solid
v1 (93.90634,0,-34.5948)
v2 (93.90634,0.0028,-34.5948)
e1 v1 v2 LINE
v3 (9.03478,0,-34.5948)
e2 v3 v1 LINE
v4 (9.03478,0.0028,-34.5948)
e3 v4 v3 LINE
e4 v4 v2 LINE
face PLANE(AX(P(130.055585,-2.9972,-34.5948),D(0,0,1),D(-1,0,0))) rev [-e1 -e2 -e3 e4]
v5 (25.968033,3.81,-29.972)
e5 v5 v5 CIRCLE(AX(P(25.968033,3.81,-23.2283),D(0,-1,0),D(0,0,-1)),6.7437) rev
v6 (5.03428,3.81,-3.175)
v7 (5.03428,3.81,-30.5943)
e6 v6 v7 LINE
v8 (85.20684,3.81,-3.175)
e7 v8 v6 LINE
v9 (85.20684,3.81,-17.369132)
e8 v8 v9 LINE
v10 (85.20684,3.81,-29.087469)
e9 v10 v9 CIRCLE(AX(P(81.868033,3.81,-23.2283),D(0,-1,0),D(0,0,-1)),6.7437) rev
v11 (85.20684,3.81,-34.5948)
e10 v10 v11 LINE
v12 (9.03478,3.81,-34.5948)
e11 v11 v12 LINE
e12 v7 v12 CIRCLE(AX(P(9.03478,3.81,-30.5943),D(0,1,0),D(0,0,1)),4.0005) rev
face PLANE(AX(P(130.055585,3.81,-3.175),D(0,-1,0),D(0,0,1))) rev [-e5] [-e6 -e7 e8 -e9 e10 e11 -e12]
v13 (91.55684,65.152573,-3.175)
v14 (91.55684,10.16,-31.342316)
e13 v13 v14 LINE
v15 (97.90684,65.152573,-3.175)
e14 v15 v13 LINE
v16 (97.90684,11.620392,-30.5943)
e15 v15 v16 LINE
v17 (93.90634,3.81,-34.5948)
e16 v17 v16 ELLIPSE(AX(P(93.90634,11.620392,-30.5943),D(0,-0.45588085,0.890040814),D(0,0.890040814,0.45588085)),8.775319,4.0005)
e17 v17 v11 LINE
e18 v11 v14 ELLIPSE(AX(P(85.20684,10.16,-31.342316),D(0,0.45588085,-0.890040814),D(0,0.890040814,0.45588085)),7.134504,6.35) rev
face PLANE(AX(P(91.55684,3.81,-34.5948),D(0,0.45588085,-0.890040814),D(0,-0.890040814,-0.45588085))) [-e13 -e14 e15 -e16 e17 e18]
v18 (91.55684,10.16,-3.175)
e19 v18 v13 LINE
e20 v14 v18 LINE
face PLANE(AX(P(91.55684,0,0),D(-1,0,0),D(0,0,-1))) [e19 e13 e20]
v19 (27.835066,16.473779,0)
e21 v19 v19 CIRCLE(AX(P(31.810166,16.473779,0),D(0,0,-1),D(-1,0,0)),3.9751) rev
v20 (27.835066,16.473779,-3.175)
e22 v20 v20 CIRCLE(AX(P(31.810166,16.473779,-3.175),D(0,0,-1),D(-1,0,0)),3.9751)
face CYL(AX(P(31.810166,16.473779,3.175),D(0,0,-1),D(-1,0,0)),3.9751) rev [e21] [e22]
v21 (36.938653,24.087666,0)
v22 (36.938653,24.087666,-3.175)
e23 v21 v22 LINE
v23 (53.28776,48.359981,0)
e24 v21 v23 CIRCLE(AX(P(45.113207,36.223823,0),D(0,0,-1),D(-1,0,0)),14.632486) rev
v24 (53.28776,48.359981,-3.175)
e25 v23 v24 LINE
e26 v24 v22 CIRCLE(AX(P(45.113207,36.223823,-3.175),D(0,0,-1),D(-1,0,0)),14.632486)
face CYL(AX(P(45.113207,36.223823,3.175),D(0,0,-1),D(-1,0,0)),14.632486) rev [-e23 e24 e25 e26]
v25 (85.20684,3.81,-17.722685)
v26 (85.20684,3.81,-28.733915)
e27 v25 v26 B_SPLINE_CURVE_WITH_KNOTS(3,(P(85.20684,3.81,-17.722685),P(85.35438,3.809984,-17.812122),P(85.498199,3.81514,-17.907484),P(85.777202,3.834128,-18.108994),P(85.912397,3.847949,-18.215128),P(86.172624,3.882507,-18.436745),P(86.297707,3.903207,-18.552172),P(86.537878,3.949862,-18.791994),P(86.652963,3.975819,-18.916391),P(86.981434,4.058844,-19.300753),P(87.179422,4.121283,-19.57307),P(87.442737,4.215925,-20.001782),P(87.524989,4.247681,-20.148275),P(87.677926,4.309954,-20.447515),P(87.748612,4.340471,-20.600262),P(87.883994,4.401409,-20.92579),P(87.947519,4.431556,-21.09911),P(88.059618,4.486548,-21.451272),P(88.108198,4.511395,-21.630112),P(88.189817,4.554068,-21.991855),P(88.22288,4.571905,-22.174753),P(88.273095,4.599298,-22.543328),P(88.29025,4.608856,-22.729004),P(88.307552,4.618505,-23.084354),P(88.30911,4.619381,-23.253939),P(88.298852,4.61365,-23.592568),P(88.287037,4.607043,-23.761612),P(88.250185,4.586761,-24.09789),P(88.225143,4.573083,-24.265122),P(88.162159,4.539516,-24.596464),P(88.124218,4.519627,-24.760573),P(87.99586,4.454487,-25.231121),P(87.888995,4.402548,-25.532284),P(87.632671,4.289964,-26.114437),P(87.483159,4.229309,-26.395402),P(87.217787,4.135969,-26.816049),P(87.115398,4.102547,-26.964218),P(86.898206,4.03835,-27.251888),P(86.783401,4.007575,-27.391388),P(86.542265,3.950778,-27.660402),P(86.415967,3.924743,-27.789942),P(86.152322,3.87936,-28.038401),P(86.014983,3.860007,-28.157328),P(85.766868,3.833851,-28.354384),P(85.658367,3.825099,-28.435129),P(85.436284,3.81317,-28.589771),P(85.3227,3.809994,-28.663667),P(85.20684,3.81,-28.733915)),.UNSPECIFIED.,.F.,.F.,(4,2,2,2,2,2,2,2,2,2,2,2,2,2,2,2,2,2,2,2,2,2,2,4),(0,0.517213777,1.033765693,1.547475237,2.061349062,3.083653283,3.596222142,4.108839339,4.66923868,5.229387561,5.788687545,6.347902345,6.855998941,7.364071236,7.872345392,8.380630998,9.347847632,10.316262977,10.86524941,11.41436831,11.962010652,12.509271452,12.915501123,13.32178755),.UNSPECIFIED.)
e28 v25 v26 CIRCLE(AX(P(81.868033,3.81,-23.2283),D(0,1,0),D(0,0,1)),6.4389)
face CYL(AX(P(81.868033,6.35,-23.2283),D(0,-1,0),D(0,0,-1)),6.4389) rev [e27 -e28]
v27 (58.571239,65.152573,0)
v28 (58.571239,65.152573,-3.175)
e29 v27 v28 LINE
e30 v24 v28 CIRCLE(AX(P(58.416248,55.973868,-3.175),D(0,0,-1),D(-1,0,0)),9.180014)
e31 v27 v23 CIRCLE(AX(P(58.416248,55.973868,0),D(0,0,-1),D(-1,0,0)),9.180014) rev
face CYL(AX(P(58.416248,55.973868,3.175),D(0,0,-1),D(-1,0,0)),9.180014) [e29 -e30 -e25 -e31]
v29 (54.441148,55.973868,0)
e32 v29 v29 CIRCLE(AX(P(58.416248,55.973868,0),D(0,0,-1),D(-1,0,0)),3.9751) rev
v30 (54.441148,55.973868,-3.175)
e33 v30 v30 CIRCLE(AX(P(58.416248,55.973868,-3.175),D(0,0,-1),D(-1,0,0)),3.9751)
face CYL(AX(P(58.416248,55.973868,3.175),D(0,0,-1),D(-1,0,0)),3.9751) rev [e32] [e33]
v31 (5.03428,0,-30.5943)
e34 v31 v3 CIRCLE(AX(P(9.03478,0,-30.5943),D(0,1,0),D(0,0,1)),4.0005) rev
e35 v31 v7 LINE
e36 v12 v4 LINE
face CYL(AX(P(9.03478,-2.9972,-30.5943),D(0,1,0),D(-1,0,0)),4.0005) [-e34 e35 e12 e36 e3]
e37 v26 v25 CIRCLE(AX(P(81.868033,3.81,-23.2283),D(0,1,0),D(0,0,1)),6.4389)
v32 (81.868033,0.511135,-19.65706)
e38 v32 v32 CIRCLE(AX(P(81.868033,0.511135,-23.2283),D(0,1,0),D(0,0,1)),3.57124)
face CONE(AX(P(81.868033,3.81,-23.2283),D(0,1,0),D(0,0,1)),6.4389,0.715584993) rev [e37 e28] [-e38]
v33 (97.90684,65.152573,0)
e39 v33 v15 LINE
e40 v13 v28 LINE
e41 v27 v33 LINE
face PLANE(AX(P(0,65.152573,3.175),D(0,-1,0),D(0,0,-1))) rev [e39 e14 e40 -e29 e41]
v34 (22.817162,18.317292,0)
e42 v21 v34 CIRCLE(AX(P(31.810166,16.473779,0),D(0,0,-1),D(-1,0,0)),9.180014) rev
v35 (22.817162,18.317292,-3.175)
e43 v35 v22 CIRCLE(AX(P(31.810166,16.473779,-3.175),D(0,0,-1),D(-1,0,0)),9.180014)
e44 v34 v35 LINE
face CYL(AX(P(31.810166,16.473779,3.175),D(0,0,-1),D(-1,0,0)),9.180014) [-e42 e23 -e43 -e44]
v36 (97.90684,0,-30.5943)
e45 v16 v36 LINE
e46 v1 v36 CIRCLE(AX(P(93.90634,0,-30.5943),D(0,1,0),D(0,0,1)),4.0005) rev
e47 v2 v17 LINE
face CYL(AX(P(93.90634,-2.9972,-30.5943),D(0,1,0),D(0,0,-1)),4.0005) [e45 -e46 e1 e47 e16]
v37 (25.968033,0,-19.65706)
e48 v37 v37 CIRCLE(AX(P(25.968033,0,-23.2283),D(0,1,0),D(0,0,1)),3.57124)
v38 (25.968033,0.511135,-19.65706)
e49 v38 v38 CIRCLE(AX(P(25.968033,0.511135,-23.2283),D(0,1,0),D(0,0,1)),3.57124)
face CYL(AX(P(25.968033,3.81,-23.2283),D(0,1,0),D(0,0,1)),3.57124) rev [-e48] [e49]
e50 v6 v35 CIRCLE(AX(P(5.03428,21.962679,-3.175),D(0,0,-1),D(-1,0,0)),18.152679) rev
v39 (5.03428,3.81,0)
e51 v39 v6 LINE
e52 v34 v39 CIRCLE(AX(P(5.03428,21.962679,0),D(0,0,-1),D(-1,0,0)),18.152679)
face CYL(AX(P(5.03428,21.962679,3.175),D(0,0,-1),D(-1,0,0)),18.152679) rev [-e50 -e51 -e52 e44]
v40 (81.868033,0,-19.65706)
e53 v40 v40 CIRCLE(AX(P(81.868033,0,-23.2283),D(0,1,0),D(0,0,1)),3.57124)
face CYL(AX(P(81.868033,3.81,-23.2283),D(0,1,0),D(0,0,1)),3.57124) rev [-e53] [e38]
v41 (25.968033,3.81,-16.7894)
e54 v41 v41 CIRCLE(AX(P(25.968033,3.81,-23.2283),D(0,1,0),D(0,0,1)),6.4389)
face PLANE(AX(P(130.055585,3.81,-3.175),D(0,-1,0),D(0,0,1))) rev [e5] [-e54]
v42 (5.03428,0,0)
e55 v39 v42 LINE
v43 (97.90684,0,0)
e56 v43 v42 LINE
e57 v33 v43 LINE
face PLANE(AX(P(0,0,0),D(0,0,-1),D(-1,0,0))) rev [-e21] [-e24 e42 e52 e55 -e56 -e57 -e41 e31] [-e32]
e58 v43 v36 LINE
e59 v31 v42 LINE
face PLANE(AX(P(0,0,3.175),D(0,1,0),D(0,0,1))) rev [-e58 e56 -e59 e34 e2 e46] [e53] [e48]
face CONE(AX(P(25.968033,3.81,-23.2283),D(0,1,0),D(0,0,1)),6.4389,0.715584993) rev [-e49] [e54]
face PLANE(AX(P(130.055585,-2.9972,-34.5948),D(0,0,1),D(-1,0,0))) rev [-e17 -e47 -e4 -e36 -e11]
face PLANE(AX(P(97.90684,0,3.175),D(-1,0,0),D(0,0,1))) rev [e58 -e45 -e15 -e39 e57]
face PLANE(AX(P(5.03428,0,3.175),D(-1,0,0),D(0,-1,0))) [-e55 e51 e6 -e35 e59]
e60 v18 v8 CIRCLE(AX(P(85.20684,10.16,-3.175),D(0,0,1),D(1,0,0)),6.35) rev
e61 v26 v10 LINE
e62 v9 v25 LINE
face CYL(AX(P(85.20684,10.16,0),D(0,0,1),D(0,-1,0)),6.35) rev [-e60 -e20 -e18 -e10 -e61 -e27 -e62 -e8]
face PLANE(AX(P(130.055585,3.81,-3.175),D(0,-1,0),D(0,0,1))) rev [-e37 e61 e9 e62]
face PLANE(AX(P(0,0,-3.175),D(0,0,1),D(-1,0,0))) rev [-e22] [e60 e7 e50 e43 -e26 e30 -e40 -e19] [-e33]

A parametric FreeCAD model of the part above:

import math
import FreeCAD as App
import Part
import Sketcher
Q = App.Units.Quantity


def edges_at(feature, points):
    """Names of the edges that pass closest to the given points."""
    edges = feature.Shape.Edges
    near = lambda p: min(range(len(edges)), key=lambda i: edges[i].distToShape(Part.Vertex(*p))[0])
    return sorted({f"Edge{near(p) + 1}" for p in points})


def add_polygon(sketch, points):
    """Adds a closed chain of lines whose ends are joined by coincident constraints."""
    first, n = sketch.GeometryCount, len(points)
    for a, b in zip(points, points[1:] + points[:1]):
        sketch.addGeometry(Part.LineSegment(App.Vector(*a, 0), App.Vector(*b, 0)), False)
    for i in range(n):
        sketch.addConstraint(Sketcher.Constraint("Coincident", first + i, 2, first + (i + 1) % n, 1))

doc = App.newDocument("Part")
body = doc.addObject("PartDesign::Body", "Body")

# Sketch on XY plane
sketch1 = body.newObject("Sketcher::SketchObject", "Sketch")
sketch1.AttachmentSupport = (doc.getObject("XY_Plane"), [""])
sketch1.MapMode = "FlatFace"
add_polygon(sketch1, [(0, 127), (0, 0), (102, 0), (102, 127)])  # lines 0-3
sketch1.addConstraint([
    Sketcher.Constraint("Vertical", 0),
    Sketcher.Constraint("Horizontal", 1),
    Sketcher.Constraint("Vertical", 2),
    Sketcher.Constraint("Horizontal", 3),
    Sketcher.Constraint("Coincident", 0, 2, -1, 1),
    Sketcher.Constraint("DistanceX", 1, 1, 1, 2, Q("4 in")),
    Sketcher.Constraint("DistanceY", 0, 2, 0, 1, Q("5 in")),
])
pad1 = body.newObject("PartDesign::Pad", "Pad")
pad1.Profile = sketch1
pad1.Length = Q("0.125 in")

# Sketch on XY plane
sketch2 = body.newObject("Sketcher::SketchObject", "Sketch001")
sketch2.AttachmentSupport = (doc.getObject("XY_Plane"), [""])
sketch2.MapMode = "FlatFace"
sketch2.addGeometry([
    Part.ArcOfCircle(Part.Circle(App.Vector(58.4, 56, 0), App.Vector(0, 0, 1), 9.2), math.radians(89), math.radians(236)),  # 0
    Part.ArcOfCircle(Part.Circle(App.Vector(45.1, 36.2, 0), App.Vector(0, 0, 1), 14.6), math.radians(-124), math.radians(56)),  # 1
    Part.ArcOfCircle(Part.Circle(App.Vector(31.8, 16.5, 0), App.Vector(0, 0, 1), 9.2), math.radians(56), math.radians(168)),  # 2
    Part.ArcOfCircle(Part.Circle(App.Vector(5, 22, 0), App.Vector(0, 0, 1), 18.2), math.radians(-90), math.radians(-12)),  # 3
    Part.LineSegment(App.Vector(5, 3.8, 0), App.Vector(5, 0, 0)),  # 4
    Part.LineSegment(App.Vector(5, 0, 0), App.Vector(0, 0, 0)),  # 5
    Part.LineSegment(App.Vector(0, 0, 0), App.Vector(0, 127, 0)),  # 6
    Part.LineSegment(App.Vector(0, 127, 0), App.Vector(101.6, 127, 0)),  # 7
    Part.LineSegment(App.Vector(101.6, 127, 0), App.Vector(101.6, 0, 0)),  # 8
    Part.LineSegment(App.Vector(101.6, 0, 0), App.Vector(97.9, 0, 0)),  # 9
    Part.LineSegment(App.Vector(97.9, 0, 0), App.Vector(97.9, 65.2, 0)),  # 10
    Part.LineSegment(App.Vector(97.9, 65.2, 0), App.Vector(58.6, 65.2, 0)),  # 11
    Part.Circle(App.Vector(58.4, 56, 0), App.Vector(0, 0, 1), 4),  # 12
    Part.Circle(App.Vector(31.8, 16.5, 0), App.Vector(0, 0, 1), 4),  # 13
], False)
sketch2.addConstraint([
    Sketcher.Constraint("Tangent", 0, 2, 1, 2),
    Sketcher.Constraint("Tangent", 1, 1, 2, 1),
    Sketcher.Constraint("Tangent", 2, 2, 3, 2),
    Sketcher.Constraint("Coincident", 3, 1, 4, 1),
    Sketcher.Constraint("Coincident", 4, 2, 5, 1),
    Sketcher.Constraint("Coincident", 5, 2, 6, 1),
    Sketcher.Constraint("Coincident", 6, 2, 7, 1),
    Sketcher.Constraint("Coincident", 7, 2, 8, 1),
    Sketcher.Constraint("Coincident", 8, 2, 9, 1),
    Sketcher.Constraint("Coincident", 9, 2, 10, 1),
    Sketcher.Constraint("Coincident", 10, 2, 11, 1),
    Sketcher.Constraint("Coincident", 11, 2, 0, 1),
    Sketcher.Constraint("Vertical", 4),
    Sketcher.Constraint("Horizontal", 5),
    Sketcher.Constraint("Vertical", 6),
    Sketcher.Constraint("Horizontal", 7),
    Sketcher.Constraint("Vertical", 8),
    Sketcher.Constraint("Horizontal", 9),
    Sketcher.Constraint("Vertical", 10),
    Sketcher.Constraint("Horizontal", 11),
    Sketcher.Constraint("Coincident", 5, 2, -1, 1),
    Sketcher.Constraint("Coincident", 12, 3, 0, 3),
    Sketcher.Constraint("Coincident", 13, 3, 2, 3),
    Sketcher.Constraint("Equal", 0, 2),
    Sketcher.Constraint("Equal", 12, 13),
    Sketcher.Constraint("PointOnObject", 8, 2, -1),
    Sketcher.Constraint("DistanceX", 7, 1, 7, 2, Q("4 in")),
    Sketcher.Constraint("DistanceY", 6, 1, 6, 2, Q("5 in")),
    Sketcher.Constraint("Diameter", 12, Q("0.313 in")),
    Sketcher.Constraint("DistanceY", 4, 2, 4, 1, Q("0.15 in")),
    Sketcher.Constraint("DistanceX", 5, 2, 5, 1, Q("0.1982 in")),
    Sketcher.Constraint("DistanceX", 9, 2, 9, 1, Q("0.1454 in")),
    Sketcher.Constraint("Radius", 3, 18.152679),
    Sketcher.Constraint("DistanceX", 11, 2, 11, 1, 39.335601),
    Sketcher.Constraint("DistanceX", -1, 1, 3, 3, Q("0.1982 in")),
    Sketcher.Constraint("Radius", 0, 9.180014),
    Sketcher.Constraint("Radius", 1, 14.632486),
    Sketcher.Constraint("DistanceY", 2, 3, 3, 3, 5.4889),
    Sketcher.Constraint("DistanceY", 10, 1, 10, 2, 65.152573),
    Sketcher.Constraint("DistanceX", -1, 1, 0, 2, 53.28776),
])
pocket1 = body.newObject("PartDesign::Pocket", "Pocket")
pocket1.Profile = sketch2
pocket1.Length = Q("0.125 in")
pocket1.Reversed = True

# Sketch on YZ plane
sketch3 = body.newObject("Sketcher::SketchObject", "Sketch002")
sketch3.AttachmentSupport = (doc.getObject("YZ_Plane"), [""])
sketch3.MapMode = "FlatFace"
sketch3.AttachmentOffset = App.Placement(App.Vector(0, 0, 0.1982 * 25.4), App.Rotation())
add_polygon(sketch3, [(0, 4.2), (0, 3.2), (3.8, 3.2), (3.8, 34.6), (-3, 34.6), (-3, 4.2)])  # lines 0-5
sketch3.addConstraint([
    Sketcher.Constraint("Vertical", 0),
    Sketcher.Constraint("Horizontal", 1),
    Sketcher.Constraint("Vertical", 2),
    Sketcher.Constraint("Horizontal", 3),
    Sketcher.Constraint("Vertical", 4),
    Sketcher.Constraint("Horizontal", 5),
    Sketcher.Constraint("PointOnObject", 0, 2, -2),
    Sketcher.Constraint("DistanceX", 1, 1, 1, 2, Q("0.15 in")),
    Sketcher.Constraint("DistanceX", 3, 2, 3, 1, Q("0.268 in")),
    Sketcher.Constraint("DistanceY", 0, 2, 0, 1, Q("0.042 in")),
    Sketcher.Constraint("DistanceY", 2, 1, 2, 2, Q("1.237 in")),
    Sketcher.Constraint("DistanceY", -1, 1, 0, 2, Q("0.125 in")),
])
pad2 = body.newObject("PartDesign::Pad", "Pad001")
pad2.Profile = sketch3
pad2.Length = Q("3.6564 in")

# Sketch on YZ plane
sketch4 = body.newObject("Sketcher::SketchObject", "Sketch003")
sketch4.AttachmentSupport = (doc.getObject("YZ_Plane"), [""])
sketch4.MapMode = "FlatFace"
sketch4.AttachmentOffset = App.Placement(App.Vector(0, 0, 3.8546 * 25.4), App.Rotation())
add_polygon(sketch4, [(4, 3), (65, 3), (4, 35)])  # lines 0-2
sketch4.addConstraint([
    Sketcher.Constraint("Horizontal", 0),
    Sketcher.Constraint("Vertical", 2),
    Sketcher.Constraint("DistanceY", 2, 2, 2, 1, Q("1.237 in")),
    Sketcher.Constraint("DistanceX", -1, 1, 1, 2, Q("0.15 in")),
    Sketcher.Constraint("DistanceY", -1, 1, 0, 2, Q("0.125 in")),
    Sketcher.Constraint("Distance", 1, 68.921079),
])
pad3 = body.newObject("PartDesign::Pad", "Pad002")
pad3.Profile = sketch4
pad3.Length = Q("0.25 in")
pad3.Reversed = True

# Sketch on XZ plane
sketch5 = body.newObject("Sketcher::SketchObject", "Sketch004")
sketch5.AttachmentSupport = (doc.getObject("XZ_Plane"), [""])
sketch5.MapMode = "FlatFace"
sketch5.AttachmentOffset = App.Placement(App.Vector(0, 0, 0.118 * 25.4), App.Rotation())
sketch5.addGeometry([
    Part.Circle(App.Vector(26, 23.2, 0), App.Vector(0, 0, 1), 3.2),
    Part.Circle(App.Vector(81.9, 23.2, 0), App.Vector(0, 0, 1), 3.2),
], False)
sketch5.addConstraint([
    Sketcher.Constraint("Equal", 0, 1),
    Sketcher.Constraint("Horizontal", 0, 3, 1, 3),
    Sketcher.Constraint("Diameter", 0, Q("0.25 in")),
    Sketcher.Constraint("DistanceY", -1, 1, 0, 3, Q("0.9145 in")),
    Sketcher.Constraint("DistanceX", 0, 3, 1, 3, 55.9),
    Sketcher.Constraint("DistanceX", -1, 1, 0, 3, 25.968033),
])
pocket2 = body.newObject("PartDesign::Pocket", "Pocket001")
pocket2.Profile = sketch5
pocket2.Length = Q("0.268 in")
doc.recompute()

fillet = body.newObject("PartDesign::Fillet", "Fillet")
fillet.Base = (pocket2, edges_at(pocket2, [
    (97.907, -1.499, 4.242),
    (5.034, -1.499, 4.242),
    (97.907, 0.406, 34.595),
    (5.034, 0.406, 34.595),
]))
fillet.Radius = Q("0.1575 in")
body2 = doc.addObject("PartDesign::Body", "Body001")
doc.recompute()

body2.BaseFeature = body
doc.recompute()

mirroring = doc.addObject("Part::Mirroring", "Mirroring")
mirroring.Source = body
mirroring.Base = App.Vector(0, 0, 0)
mirroring.Normal = App.Vector(0, 0, 1)
body3 = doc.addObject("PartDesign::Body", "Body002")
body3.BaseFeature = mirroring
boolean = body2.newObject("PartDesign::Boolean", "Boolean")
boolean.Type = "Fuse"
boolean.addObjects([body3])
doc.recompute()

# Sketch on XY plane
sketch6 = body2.newObject("Sketcher::SketchObject", "Sketch005")
sketch6.AttachmentSupport = (doc.getObject("XY_Plane001"), [""])
sketch6.MapMode = "FlatFace"
add_polygon(sketch6, [(105, -15), (107, 72), (-9, 74), (-10, -13)])  # lines 0-3
sketch6.addConstraint([
    Sketcher.Constraint("Perpendicular", 0, 1),
    Sketcher.Constraint("Perpendicular", 1, 2),
    Sketcher.Constraint("Perpendicular", 2, 3),
    Sketcher.Constraint("Distance", 0, 87.086052),
    Sketcher.Constraint("Distance", 1, 115.396939),
    Sketcher.Constraint("DistanceY", -1, 1, 0, 2, 71.83376),
    Sketcher.Constraint("DistanceX", -1, 1, 3, 2, 105.47548),
    Sketcher.Constraint("DistanceY", 3, 2, -1, 1, 15.241589),
])
pocket3 = body2.newObject("PartDesign::Pocket", "Pocket002")
pocket3.Profile = sketch6
pocket3.Length = Q("1.362 in")
pocket3.Reversed = True

# Sketch on XZ plane
sketch7 = body2.newObject("Sketcher::SketchObject", "Sketch006")
sketch7.AttachmentSupport = (doc.getObject("XZ_Plane001"), [""])
sketch7.MapMode = "FlatFace"
sketch7.AttachmentOffset = App.Placement(App.Vector(0, 0, 0.118 * 25.4), App.Rotation())
sketch7.addGeometry([
    Part.LineSegment(App.Vector(93.9, -4.2, 0), App.Vector(9, -4.2, 0)),  # 0
    Part.ArcOfCircle(Part.Circle(App.Vector(9, -8.2, 0), App.Vector(0, 0, 1), 4), math.radians(90), math.radians(180)),  # 1
    Part.LineSegment(App.Vector(5, -8.2, 0), App.Vector(5, -30.6, 0)),  # 2
    Part.ArcOfCircle(Part.Circle(App.Vector(9, -30.6, 0), App.Vector(0, 0, 1), 4), math.radians(180), math.radians(270)),  # 3
    Part.LineSegment(App.Vector(9, -34.6, 0), App.Vector(93.9, -34.6, 0)),  # 4
    Part.ArcOfCircle(Part.Circle(App.Vector(93.9, -30.6, 0), App.Vector(0, 0, 1), 4), math.radians(-90), math.radians(0)),  # 5
    Part.LineSegment(App.Vector(97.9, -30.6, 0), App.Vector(97.9, -8.2, 0)),  # 6
    Part.ArcOfCircle(Part.Circle(App.Vector(93.9, -8.2, 0), App.Vector(0, 0, 1), 4), math.radians(0), math.radians(90)),  # 7
], False)
sketch7.addConstraint([
    Sketcher.Constraint("Tangent", 0, 2, 1, 1),
    Sketcher.Constraint("Tangent", 1, 2, 2, 1),
    Sketcher.Constraint("Tangent", 2, 2, 3, 1),
    Sketcher.Constraint("Tangent", 3, 2, 4, 1),
    Sketcher.Constraint("Tangent", 4, 2, 5, 1),
    Sketcher.Constraint("Tangent", 5, 2, 6, 1),
    Sketcher.Constraint("Tangent", 6, 2, 7, 1),
    Sketcher.Constraint("Tangent", 7, 2, 0, 1),
    Sketcher.Constraint("Horizontal", 0),
    Sketcher.Constraint("Vertical", 2),
    Sketcher.Constraint("Horizontal", 4),
    Sketcher.Constraint("Vertical", 6),
    Sketcher.Constraint("Equal", 1, 3),
    Sketcher.Constraint("Equal", 3, 5),
    Sketcher.Constraint("Equal", 5, 7),
    Sketcher.Constraint("DistanceY", 2, 2, 2, 1, Q("0.88 in")),
    Sketcher.Constraint("Radius", 1, Q("0.1575 in")),
    Sketcher.Constraint("DistanceX", 0, 2, 0, 1, Q("3.3414 in")),
    Sketcher.Constraint("DistanceY", 0, 2, -1, 1, Q("0.167 in")),
    Sketcher.Constraint("DistanceX", -1, 1, 1, 3, Q("0.3557 in")),
])
pocket4 = body2.newObject("PartDesign::Pocket", "Pocket003")
pocket4.Profile = sketch7
pocket4.Length = Q("0.118 in")
doc.recompute()

fillet2 = body2.newObject("PartDesign::Fillet", "Fillet001")
fillet2.Base = (pocket4, edges_at(pocket4, [(91.557, 3.81, -18.885)]))
fillet2.Radius = Q("0.25 in")

# Sketch on YZ plane
sketch8 = body2.newObject("Sketcher::SketchObject", "Sketch007")
sketch8.AttachmentSupport = (doc.getObject("YZ_Plane001"), [""])
sketch8.MapMode = "FlatFace"
sketch8.AttachmentOffset = App.Placement(App.Vector(0, 0, 25.968033), App.Rotation())
add_polygon(sketch8, [(0, -23.2), (3.8, -23.2), (3.8, -16.8), (0.5, -19.7), (0, -19.7)])  # lines 0-4
sketch8.addGeometry(Part.LineSegment(App.Vector(3.8, -23.2, 0), App.Vector(0, -23.2, 0)), True)  # axis
sketch8.addConstraint([
    Sketcher.Constraint("Horizontal", 0),
    Sketcher.Constraint("Vertical", 1),
    Sketcher.Constraint("Horizontal", 3),
    Sketcher.Constraint("Vertical", 4),
    Sketcher.Constraint("Horizontal", 5),
    Sketcher.Constraint("Coincident", 5, 1, 0, 2),
    Sketcher.Constraint("PointOnObject", 3, 2, -2),
    Sketcher.Constraint("PointOnObject", 5, 2, -2),
    Sketcher.Constraint("Angle", 2, Q("-139 deg")),
    Sketcher.Constraint("DistanceX", 0, 1, 0, 2, Q("0.15 in")),
    Sketcher.Constraint("DistanceY", 1, 1, 1, 2, Q("0.2535 in")),
    Sketcher.Constraint("DistanceY", 4, 2, 4, 1, Q("0.1406 in")),
    Sketcher.Constraint("DistanceY", 1, 2, -1, 1, Q("0.661 in")),
])
groove = body2.newObject("PartDesign::Groove", "Groove")
groove.Profile = sketch8
groove.ReferenceAxis = (sketch8, ["Axis0"])
groove.Angle = 360
doc.recompute()

linearpattern = body2.newObject("PartDesign::LinearPattern", "LinearPattern")
linearpattern.Originals = [groove]
linearpattern.Direction = (doc.getObject("X_Axis001"), [""])
linearpattern.Mode = "offset"
linearpattern.Offset = 55.9
linearpattern.Occurrences = 2
body2.Tip = linearpattern

# Sketch on XZ plane
sketch9 = body2.newObject("Sketcher::SketchObject", "Sketch008")
sketch9.AttachmentSupport = (doc.getObject("XZ_Plane001"), [""])
sketch9.MapMode = "FlatFace"
sketch9.AttachmentOffset = App.Placement(App.Vector(0, 0, -0.15 * 25.4), App.Rotation())
sketch9.addGeometry(Part.Circle(App.Vector(82, -23, 0), App.Vector(0, 0, 1), 6), False)
sketch9.addConstraint([
    Sketcher.Constraint("Diameter", 0, Q("0.507 in")),
    Sketcher.Constraint("DistanceY", 0, 3, -1, 1, Q("0.9145 in")),
    Sketcher.Constraint("DistanceX", -1, 1, 0, 3, 81.868033),
])
pocket5 = body2.newObject("PartDesign::Pocket", "Pocket004")
pocket5.Profile = sketch9
pocket5.Length = Q("0.1 in")
mirroring.Visibility = False

doc.recompute()
